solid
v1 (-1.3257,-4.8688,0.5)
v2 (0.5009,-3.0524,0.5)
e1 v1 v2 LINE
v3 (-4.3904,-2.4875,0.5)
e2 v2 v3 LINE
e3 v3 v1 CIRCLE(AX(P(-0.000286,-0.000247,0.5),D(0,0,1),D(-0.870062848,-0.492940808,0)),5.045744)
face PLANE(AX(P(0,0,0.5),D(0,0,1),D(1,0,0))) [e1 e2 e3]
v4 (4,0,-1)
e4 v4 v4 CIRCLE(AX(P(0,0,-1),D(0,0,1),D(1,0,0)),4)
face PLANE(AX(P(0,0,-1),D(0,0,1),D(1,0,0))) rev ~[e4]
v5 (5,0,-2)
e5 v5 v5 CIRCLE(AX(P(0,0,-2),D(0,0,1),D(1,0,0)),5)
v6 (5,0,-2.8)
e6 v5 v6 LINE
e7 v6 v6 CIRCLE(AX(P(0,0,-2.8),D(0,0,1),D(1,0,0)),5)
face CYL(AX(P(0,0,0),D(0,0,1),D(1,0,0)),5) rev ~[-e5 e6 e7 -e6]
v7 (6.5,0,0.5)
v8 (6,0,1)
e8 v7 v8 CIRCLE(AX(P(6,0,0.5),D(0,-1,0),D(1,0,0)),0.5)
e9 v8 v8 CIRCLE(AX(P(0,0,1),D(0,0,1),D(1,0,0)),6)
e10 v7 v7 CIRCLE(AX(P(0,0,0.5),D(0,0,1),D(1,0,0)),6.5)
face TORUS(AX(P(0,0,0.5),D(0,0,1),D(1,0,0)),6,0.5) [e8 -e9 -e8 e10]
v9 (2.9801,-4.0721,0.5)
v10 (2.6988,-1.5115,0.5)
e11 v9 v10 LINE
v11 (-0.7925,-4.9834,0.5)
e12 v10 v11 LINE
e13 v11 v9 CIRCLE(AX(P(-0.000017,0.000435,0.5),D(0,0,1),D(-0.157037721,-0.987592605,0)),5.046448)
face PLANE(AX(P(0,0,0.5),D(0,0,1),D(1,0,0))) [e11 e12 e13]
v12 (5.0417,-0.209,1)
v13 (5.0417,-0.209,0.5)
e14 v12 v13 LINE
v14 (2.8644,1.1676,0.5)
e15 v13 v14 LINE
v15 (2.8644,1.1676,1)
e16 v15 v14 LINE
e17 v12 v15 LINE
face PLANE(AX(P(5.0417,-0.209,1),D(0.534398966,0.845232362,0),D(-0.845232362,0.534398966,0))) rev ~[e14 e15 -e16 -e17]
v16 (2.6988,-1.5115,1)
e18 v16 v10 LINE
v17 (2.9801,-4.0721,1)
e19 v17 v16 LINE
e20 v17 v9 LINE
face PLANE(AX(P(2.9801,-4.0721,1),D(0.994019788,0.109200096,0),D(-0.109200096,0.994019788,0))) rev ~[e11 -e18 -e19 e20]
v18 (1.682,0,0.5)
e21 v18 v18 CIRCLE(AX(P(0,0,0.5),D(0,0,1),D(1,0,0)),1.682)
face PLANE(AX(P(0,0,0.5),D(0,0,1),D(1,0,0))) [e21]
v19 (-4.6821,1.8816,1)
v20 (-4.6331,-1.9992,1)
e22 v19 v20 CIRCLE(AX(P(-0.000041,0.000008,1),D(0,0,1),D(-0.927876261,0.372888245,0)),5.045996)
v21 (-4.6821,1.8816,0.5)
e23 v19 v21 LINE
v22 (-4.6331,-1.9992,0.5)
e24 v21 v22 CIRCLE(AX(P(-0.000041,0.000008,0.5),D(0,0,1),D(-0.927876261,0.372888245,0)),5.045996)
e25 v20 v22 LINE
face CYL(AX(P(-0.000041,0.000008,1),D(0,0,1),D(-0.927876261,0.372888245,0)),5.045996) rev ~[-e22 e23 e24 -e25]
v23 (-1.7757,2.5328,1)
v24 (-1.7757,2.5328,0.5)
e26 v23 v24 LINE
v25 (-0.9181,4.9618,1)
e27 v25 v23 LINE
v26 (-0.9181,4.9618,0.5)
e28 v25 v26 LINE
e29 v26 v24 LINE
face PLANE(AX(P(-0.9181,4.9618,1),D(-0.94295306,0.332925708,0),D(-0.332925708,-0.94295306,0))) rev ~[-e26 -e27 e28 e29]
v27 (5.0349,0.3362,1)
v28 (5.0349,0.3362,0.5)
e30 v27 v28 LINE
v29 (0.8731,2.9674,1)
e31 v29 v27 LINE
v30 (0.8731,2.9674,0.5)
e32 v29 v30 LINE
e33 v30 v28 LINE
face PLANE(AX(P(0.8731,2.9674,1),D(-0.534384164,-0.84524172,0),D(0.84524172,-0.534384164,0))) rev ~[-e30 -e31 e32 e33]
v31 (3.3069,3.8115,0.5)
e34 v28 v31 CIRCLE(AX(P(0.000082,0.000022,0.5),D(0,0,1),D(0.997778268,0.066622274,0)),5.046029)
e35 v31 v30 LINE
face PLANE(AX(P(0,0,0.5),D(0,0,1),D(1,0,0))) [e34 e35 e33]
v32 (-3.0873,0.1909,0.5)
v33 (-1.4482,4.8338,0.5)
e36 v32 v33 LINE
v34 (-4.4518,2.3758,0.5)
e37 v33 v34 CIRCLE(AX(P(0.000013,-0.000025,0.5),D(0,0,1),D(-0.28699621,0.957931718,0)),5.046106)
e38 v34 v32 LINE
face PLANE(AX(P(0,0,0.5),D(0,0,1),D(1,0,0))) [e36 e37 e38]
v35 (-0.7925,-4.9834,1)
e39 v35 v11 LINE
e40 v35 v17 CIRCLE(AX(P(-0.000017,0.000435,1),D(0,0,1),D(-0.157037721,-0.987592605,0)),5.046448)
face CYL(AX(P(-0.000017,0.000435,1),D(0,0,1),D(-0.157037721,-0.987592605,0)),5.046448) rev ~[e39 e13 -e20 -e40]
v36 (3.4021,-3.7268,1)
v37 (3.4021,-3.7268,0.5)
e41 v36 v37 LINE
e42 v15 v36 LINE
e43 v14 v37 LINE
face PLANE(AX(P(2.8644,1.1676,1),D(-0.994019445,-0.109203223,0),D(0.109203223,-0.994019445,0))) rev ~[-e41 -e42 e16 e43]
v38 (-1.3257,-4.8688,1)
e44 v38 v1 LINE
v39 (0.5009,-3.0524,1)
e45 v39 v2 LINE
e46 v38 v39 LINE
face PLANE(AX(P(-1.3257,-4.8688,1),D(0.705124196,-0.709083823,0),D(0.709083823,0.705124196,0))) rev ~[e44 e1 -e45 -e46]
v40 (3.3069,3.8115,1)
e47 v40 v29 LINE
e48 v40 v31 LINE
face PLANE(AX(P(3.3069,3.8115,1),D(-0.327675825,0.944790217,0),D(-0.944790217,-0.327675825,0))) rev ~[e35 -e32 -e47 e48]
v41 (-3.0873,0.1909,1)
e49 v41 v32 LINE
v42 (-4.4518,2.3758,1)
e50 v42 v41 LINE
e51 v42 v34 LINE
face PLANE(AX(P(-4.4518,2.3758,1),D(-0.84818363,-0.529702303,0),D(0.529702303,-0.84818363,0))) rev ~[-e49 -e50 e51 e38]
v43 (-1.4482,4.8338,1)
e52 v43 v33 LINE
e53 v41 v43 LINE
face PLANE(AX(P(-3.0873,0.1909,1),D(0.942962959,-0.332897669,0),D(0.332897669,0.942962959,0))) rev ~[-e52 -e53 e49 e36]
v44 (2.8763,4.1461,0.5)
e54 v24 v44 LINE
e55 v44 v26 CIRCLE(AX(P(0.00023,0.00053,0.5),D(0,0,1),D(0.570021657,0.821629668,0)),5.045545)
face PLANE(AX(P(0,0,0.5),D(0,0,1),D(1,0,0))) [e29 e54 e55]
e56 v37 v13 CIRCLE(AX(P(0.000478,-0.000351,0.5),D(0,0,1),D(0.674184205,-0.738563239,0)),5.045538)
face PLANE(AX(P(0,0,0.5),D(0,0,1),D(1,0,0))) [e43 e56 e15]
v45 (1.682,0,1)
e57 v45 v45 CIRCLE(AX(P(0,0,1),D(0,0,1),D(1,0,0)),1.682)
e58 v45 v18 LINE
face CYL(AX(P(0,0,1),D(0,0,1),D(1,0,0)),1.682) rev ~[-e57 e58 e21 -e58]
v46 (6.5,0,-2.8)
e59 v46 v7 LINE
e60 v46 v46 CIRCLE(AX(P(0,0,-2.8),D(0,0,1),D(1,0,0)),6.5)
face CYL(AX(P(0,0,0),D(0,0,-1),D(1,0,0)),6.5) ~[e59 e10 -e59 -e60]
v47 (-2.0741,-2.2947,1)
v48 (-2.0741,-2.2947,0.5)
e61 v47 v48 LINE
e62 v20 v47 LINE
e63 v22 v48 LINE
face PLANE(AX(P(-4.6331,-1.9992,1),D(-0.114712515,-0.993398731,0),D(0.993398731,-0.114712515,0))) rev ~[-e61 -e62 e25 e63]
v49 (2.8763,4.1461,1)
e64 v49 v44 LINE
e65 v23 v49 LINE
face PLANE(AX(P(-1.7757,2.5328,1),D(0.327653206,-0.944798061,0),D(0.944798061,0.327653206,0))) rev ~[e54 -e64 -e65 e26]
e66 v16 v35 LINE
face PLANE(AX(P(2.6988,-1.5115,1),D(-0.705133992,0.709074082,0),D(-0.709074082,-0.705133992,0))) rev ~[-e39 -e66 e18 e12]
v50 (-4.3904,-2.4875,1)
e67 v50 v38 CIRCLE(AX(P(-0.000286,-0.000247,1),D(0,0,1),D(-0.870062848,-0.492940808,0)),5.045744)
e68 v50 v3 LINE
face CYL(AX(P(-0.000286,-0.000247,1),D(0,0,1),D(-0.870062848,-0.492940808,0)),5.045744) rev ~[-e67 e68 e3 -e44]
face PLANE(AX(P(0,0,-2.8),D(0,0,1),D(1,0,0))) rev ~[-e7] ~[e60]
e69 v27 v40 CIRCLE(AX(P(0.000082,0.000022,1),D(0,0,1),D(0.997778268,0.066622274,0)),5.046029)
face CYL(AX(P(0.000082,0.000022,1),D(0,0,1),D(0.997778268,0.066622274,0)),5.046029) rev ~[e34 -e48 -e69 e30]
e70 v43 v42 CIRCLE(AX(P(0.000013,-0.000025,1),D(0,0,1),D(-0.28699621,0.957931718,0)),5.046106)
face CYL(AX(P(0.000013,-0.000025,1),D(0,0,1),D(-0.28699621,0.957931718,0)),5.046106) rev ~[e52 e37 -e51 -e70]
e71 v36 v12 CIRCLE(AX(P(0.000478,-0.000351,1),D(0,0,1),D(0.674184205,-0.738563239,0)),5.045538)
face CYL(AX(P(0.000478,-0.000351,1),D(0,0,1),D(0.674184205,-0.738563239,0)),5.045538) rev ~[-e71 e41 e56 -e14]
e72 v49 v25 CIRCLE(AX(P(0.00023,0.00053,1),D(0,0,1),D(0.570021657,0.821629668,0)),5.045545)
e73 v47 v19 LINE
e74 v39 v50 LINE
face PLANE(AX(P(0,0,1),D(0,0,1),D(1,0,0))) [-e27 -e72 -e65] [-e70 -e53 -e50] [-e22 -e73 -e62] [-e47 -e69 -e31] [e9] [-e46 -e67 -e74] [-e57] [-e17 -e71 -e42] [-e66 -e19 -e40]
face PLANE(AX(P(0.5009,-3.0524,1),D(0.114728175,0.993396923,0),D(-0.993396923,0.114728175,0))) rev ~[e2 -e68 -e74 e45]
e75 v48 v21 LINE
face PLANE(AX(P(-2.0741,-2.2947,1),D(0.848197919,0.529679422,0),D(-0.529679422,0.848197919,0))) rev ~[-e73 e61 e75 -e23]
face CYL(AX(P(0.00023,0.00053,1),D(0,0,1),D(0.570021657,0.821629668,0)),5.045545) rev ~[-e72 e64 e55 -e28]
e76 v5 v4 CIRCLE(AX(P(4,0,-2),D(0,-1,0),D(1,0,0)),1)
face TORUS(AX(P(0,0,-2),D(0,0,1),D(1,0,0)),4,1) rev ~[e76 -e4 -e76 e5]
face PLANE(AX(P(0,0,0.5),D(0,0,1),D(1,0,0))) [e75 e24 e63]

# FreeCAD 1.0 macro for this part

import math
import FreeCAD as App
import Part
import Sketcher

V = App.Vector


def edges_at(feature, points):
    """Names of the edges that pass closest to the given points."""
    edges = feature.Shape.Edges
    near = lambda p: min(range(len(edges)), key=lambda i: edges[i].distToShape(Part.Vertex(*p))[0])
    return sorted({f"Edge{near(p) + 1}" for p in points})

doc = App.newDocument("Part")
body = doc.addObject("PartDesign::Body", "Body")

# Sketch on XY plane
sketch1 = doc.addObject("Sketcher::SketchObject", "Sketch")
body.addObject(sketch1)
sketch1.AttachmentSupport = (doc.XY_Plane, [""])
sketch1.MapMode = "FlatFace"
sketch1.addGeometry([
    Part.Circle(V(0, 0, 0), V(0, 0, 1), 6),
    Part.Circle(V(0, 0, 0), V(0, 0, 1), 5),
], False)
sketch1.addConstraint([
    Sketcher.Constraint("Coincident", 0, 3, -1, 1),
    Sketcher.Constraint("Coincident", 1, 3, -1, 1),
    Sketcher.Constraint("Diameter", 0, 13.0),
    Sketcher.Constraint("Diameter", 1, 10.0),
])
pad1 = doc.addObject("PartDesign::Pad", "Pad")
body.addObject(pad1)
pad1.Profile = sketch1
pad1.Length = 2.8
pad1.Reversed = True

# Sketch on XY plane
sketch2 = doc.addObject("Sketcher::SketchObject", "Sketch001")
body.addObject(sketch2)
sketch2.AttachmentSupport = (doc.XY_Plane, [""])
sketch2.MapMode = "FlatFace"
sketch2.addGeometry(Part.Circle(V(0, 0, 0), V(0, 0, 1), 6), False)
sketch2.addConstraint([
    Sketcher.Constraint("Coincident", 0, 3, -1, 1),
    Sketcher.Constraint("Diameter", 0, 13.0),
])
pad2 = doc.addObject("PartDesign::Pad", "Pad001")
body.addObject(pad2)
pad2.Profile = sketch2
pad2.Length = 2
pad2.Midplane = True
doc.recompute()

fillet = doc.addObject("PartDesign::Fillet", "Fillet")
body.addObject(fillet)
fillet.Base = (pad2, edges_at(pad2, [(-6.5, 0, 1)]))
fillet.Radius = 0.5

# Sketch on XY plane
sketch3 = doc.addObject("Sketcher::SketchObject", "Sketch002")
body.addObject(sketch3)
sketch3.AttachmentSupport = (doc.XY_Plane, [""])
sketch3.MapMode = "FlatFace"
sketch3.AttachmentOffset = App.Placement(V(0, 0, 1), App.Rotation())
sketch3.addGeometry([
    Part.LineSegment(V(-0.9181, 4.9618, 0), V(-1.7757, 2.5328, 0)),  # 0
    Part.LineSegment(V(-1.7757, 2.5328, 0), V(2.8763, 4.1461, 0)),  # 1
    Part.ArcOfCircle(Part.Circle(V(0, 0, 0), V(0, 0, 1), 5.046021), math.radians(55.249551), math.radians(100.483083)),  # 2
    Part.LineSegment(V(3.3069, 3.8115, 0), V(0.8731, 2.9674, 0)),  # 3
    Part.LineSegment(V(0.8731, 2.9674, 0), V(5.0349, 0.3362, 0)),  # 4
    Part.ArcOfCircle(Part.Circle(V(0, 0, 0), V(0, 0, 1), 5.046036), math.radians(3.820193), math.radians(49.054727)),  # 5
    Part.LineSegment(V(5.0417, -0.209, 0), V(2.8644, 1.1676, 0)),  # 6
    Part.LineSegment(V(2.8644, 1.1676, 0), V(3.4021, -3.7268, 0)),  # 7
    Part.ArcOfCircle(Part.Circle(V(0, 0, 0), V(0, 0, 1), 5.046021), math.radians(-47.607848), math.radians(-2.373796)),  # 8
    Part.Circle(V(0, 0, 0), V(0, 0, 1), 1.682),  # 9
    Part.LineSegment(V(2.9801, -4.0721, 0), V(2.6988, -1.5115, 0)),  # 10
    Part.LineSegment(V(2.6988, -1.5115, 0), V(-0.7925, -4.9834, 0)),  # 11
    Part.ArcOfCircle(Part.Circle(V(0, 0, 0), V(0, 0, 1), 5.04612), math.radians(-99.035966), math.radians(-53.802077)),  # 12
    Part.LineSegment(V(-1.3257, -4.8688, 0), V(0.5009, -3.0524, 0)),  # 13
    Part.LineSegment(V(0.5009, -3.0524, 0), V(-4.3904, -2.4875, 0)),  # 14
    Part.ArcOfCircle(Part.Circle(V(0, 0, 0), V(0, 0, 1), 5.046021), math.radians(-150.465103), math.radians(-105.231517)),  # 15
    Part.LineSegment(V(-4.6331, -1.9992, 0), V(-2.0741, -2.2947, 0)),  # 16
    Part.LineSegment(V(-2.0741, -2.2947, 0), V(-4.6821, 1.8816, 0)),  # 17
    Part.ArcOfCircle(Part.Circle(V(0, 0, 0), V(0, 0, 1), 5.046021), math.radians(158.106238), math.radians(203.340379)),  # 18
    Part.LineSegment(V(-4.4518, 2.3758, 0), V(-3.0873, 0.1909, 0)),  # 19
    Part.LineSegment(V(-3.0873, 0.1909, 0), V(-1.4482, 4.8338, 0)),  # 20
    Part.ArcOfCircle(Part.Circle(V(0, 0, 0), V(0, 0, 1), 5.046112), math.radians(106.678145), math.radians(151.912418)),  # 21
], False)
sketch3.addConstraint([
    Sketcher.Constraint("Coincident", 0, 2, 1, 1),
    Sketcher.Constraint("Coincident", 1, 2, 2, 1),
    Sketcher.Constraint("Coincident", 2, 2, 0, 1),
    Sketcher.Constraint("Coincident", 3, 2, 4, 1),
    Sketcher.Constraint("Coincident", 4, 2, 5, 1),
    Sketcher.Constraint("Coincident", 5, 2, 3, 1),
    Sketcher.Constraint("Coincident", 6, 2, 7, 1),
    Sketcher.Constraint("Coincident", 7, 2, 8, 1),
    Sketcher.Constraint("Coincident", 8, 2, 6, 1),
    Sketcher.Constraint("Coincident", 10, 2, 11, 1),
    Sketcher.Constraint("Coincident", 11, 2, 12, 1),
    Sketcher.Constraint("Coincident", 12, 2, 10, 1),
    Sketcher.Constraint("Coincident", 13, 2, 14, 1),
    Sketcher.Constraint("Coincident", 14, 2, 15, 1),
    Sketcher.Constraint("Coincident", 15, 2, 13, 1),
    Sketcher.Constraint("Coincident", 16, 2, 17, 1),
    Sketcher.Constraint("Coincident", 17, 2, 18, 1),
    Sketcher.Constraint("Coincident", 18, 2, 16, 1),
    Sketcher.Constraint("Coincident", 19, 2, 20, 1),
    Sketcher.Constraint("Coincident", 20, 2, 21, 1),
    Sketcher.Constraint("Coincident", 21, 2, 19, 1),
    Sketcher.Constraint("Coincident", 2, 3, -1, 1),
    Sketcher.Constraint("Coincident", 5, 3, -1, 1),
    Sketcher.Constraint("Coincident", 8, 3, -1, 1),
    Sketcher.Constraint("Coincident", 9, 3, -1, 1),
    Sketcher.Constraint("Coincident", 12, 3, -1, 1),
    Sketcher.Constraint("Coincident", 15, 3, -1, 1),
    Sketcher.Constraint("Coincident", 18, 3, -1, 1),
    Sketcher.Constraint("Coincident", 21, 3, -1, 1),
    Sketcher.Constraint("Diameter", 9, 3.364),
    Sketcher.Constraint("Radius", 2, 5.046),
    Sketcher.Constraint("Radius", 5, 5.046),
    Sketcher.Constraint("Radius", 8, 5.046),
    Sketcher.Constraint("Radius", 12, 5.046),
    Sketcher.Constraint("Radius", 15, 5.046),
    Sketcher.Constraint("Radius", 18, 5.046),
    Sketcher.Constraint("Radius", 21, 5.046),
    Sketcher.Constraint("DistanceX", -1, 1, 12, 2, 2.98),
    Sketcher.Constraint("DistanceY", 4, 2, 1, 2, 3.81),
    Sketcher.Constraint("DistanceY", 18, 2, 19, 2, 2.19),
    Sketcher.Constraint("DistanceX", 20, 2, 2, 2, 0.53),
    Sketcher.Constraint("Distance", 0, 2.576),
    Sketcher.Constraint("Distance", 3, 2.576),
    Sketcher.Constraint("Distance", 6, 2.576),
    Sketcher.Constraint("Distance", 10, 2.576),
    Sketcher.Constraint("Distance", 13, 2.576),
    Sketcher.Constraint("Distance", 16, 2.576),
    Sketcher.Constraint("Distance", 19, 2.576),
    Sketcher.Constraint("DistanceY", -1, 1, 1, 2, 4.146),
    Sketcher.Constraint("DistanceX", 2, 2, -1, 1, 0.918),
    Sketcher.Constraint("DistanceX", -1, 1, 3, 2, 0.873),
    Sketcher.Constraint("DistanceX", -1, 1, 7, 2, 3.402),
    Sketcher.Constraint("DistanceY", 8, 2, -1, 1, 0.209),
    Sketcher.Constraint("DistanceX", -1, 1, 13, 2, 0.501),
    Sketcher.Constraint("DistanceX", 16, 2, -1, 1, 2.074),
    Sketcher.Constraint("DistanceX", 17, 2, -1, 1, 4.682),
    Sketcher.Constraint("DistanceX", 18, 2, -1, 1, 4.633),
    Sketcher.Constraint("DistanceX", 0, 2, 1, 2, 4.652),
    Sketcher.Constraint("DistanceY", 3, 2, 5, 2, 0.844),
    Sketcher.Constraint("DistanceX", 6, 2, 1, 2, 0.012),
    Sketcher.Constraint("DistanceX", 10, 2, 8, 2, 2.343),
    Sketcher.Constraint("DistanceY", 11, 2, 10, 2, 3.472),
    Sketcher.Constraint("DistanceY", 11, 2, 13, 2, 1.931),
    Sketcher.Constraint("DistanceX", 14, 2, 11, 2, 3.598),
    Sketcher.Constraint("DistanceX", 14, 2, 19, 2, 1.303),
])
pocket1 = doc.addObject("PartDesign::Pocket", "Pocket")
body.addObject(pocket1)
pocket1.Profile = sketch3
pocket1.Length = 0.5
doc.recompute()

fillet2 = doc.addObject("PartDesign::Fillet", "Fillet001")
body.addObject(fillet2)
fillet2.Base = (pocket1, edges_at(pocket1, [(-5, 0, -1)]))
fillet2.Radius = 1

doc.recompute()
